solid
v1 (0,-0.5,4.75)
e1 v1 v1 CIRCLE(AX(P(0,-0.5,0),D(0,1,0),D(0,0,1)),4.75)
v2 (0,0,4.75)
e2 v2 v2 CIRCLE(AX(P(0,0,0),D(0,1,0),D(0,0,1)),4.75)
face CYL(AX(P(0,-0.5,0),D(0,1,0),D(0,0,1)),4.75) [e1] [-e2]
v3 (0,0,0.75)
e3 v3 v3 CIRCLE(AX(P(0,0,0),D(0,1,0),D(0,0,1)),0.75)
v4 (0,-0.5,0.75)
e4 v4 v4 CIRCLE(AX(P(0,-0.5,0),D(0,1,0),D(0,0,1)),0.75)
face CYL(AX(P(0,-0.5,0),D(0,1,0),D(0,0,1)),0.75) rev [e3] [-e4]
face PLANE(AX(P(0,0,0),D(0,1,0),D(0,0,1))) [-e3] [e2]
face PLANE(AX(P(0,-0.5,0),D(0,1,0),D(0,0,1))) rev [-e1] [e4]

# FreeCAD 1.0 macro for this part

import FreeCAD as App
import Part
import Sketcher
from FreeCAD import Vector
Q = App.Units.Quantity

doc = App.newDocument("Part")
body = doc.addObject("PartDesign::Body", "Body")

# Sketch on XZ plane
sketch1 = body.newObject("Sketcher::SketchObject", "Sketch")
sketch1.AttachmentSupport = (doc.getObject("XZ_Plane"), [""])
sketch1.MapMode = "FlatFace"
sketch1.addGeometry([
    Part.Circle(Vector(0, 0, 0), Vector(0, 0, 1), 4.8),
    Part.Circle(Vector(0, 0, 0), Vector(0, 0, 1), 0.8),
], False)
sketch1.addConstraint([
    Sketcher.Constraint("Coincident", 0, 3, -1, 1),
    Sketcher.Constraint("Coincident", 1, 3, -1, 1),
    Sketcher.Constraint("Diameter", 0, Q("9.5 mm")),
    Sketcher.Constraint("Diameter", 1, Q("1.5 mm")),
])
pad1 = body.newObject("PartDesign::Pad", "Pad")
pad1.Profile = sketch1
pad1.Length = 0.5

doc.recompute()
